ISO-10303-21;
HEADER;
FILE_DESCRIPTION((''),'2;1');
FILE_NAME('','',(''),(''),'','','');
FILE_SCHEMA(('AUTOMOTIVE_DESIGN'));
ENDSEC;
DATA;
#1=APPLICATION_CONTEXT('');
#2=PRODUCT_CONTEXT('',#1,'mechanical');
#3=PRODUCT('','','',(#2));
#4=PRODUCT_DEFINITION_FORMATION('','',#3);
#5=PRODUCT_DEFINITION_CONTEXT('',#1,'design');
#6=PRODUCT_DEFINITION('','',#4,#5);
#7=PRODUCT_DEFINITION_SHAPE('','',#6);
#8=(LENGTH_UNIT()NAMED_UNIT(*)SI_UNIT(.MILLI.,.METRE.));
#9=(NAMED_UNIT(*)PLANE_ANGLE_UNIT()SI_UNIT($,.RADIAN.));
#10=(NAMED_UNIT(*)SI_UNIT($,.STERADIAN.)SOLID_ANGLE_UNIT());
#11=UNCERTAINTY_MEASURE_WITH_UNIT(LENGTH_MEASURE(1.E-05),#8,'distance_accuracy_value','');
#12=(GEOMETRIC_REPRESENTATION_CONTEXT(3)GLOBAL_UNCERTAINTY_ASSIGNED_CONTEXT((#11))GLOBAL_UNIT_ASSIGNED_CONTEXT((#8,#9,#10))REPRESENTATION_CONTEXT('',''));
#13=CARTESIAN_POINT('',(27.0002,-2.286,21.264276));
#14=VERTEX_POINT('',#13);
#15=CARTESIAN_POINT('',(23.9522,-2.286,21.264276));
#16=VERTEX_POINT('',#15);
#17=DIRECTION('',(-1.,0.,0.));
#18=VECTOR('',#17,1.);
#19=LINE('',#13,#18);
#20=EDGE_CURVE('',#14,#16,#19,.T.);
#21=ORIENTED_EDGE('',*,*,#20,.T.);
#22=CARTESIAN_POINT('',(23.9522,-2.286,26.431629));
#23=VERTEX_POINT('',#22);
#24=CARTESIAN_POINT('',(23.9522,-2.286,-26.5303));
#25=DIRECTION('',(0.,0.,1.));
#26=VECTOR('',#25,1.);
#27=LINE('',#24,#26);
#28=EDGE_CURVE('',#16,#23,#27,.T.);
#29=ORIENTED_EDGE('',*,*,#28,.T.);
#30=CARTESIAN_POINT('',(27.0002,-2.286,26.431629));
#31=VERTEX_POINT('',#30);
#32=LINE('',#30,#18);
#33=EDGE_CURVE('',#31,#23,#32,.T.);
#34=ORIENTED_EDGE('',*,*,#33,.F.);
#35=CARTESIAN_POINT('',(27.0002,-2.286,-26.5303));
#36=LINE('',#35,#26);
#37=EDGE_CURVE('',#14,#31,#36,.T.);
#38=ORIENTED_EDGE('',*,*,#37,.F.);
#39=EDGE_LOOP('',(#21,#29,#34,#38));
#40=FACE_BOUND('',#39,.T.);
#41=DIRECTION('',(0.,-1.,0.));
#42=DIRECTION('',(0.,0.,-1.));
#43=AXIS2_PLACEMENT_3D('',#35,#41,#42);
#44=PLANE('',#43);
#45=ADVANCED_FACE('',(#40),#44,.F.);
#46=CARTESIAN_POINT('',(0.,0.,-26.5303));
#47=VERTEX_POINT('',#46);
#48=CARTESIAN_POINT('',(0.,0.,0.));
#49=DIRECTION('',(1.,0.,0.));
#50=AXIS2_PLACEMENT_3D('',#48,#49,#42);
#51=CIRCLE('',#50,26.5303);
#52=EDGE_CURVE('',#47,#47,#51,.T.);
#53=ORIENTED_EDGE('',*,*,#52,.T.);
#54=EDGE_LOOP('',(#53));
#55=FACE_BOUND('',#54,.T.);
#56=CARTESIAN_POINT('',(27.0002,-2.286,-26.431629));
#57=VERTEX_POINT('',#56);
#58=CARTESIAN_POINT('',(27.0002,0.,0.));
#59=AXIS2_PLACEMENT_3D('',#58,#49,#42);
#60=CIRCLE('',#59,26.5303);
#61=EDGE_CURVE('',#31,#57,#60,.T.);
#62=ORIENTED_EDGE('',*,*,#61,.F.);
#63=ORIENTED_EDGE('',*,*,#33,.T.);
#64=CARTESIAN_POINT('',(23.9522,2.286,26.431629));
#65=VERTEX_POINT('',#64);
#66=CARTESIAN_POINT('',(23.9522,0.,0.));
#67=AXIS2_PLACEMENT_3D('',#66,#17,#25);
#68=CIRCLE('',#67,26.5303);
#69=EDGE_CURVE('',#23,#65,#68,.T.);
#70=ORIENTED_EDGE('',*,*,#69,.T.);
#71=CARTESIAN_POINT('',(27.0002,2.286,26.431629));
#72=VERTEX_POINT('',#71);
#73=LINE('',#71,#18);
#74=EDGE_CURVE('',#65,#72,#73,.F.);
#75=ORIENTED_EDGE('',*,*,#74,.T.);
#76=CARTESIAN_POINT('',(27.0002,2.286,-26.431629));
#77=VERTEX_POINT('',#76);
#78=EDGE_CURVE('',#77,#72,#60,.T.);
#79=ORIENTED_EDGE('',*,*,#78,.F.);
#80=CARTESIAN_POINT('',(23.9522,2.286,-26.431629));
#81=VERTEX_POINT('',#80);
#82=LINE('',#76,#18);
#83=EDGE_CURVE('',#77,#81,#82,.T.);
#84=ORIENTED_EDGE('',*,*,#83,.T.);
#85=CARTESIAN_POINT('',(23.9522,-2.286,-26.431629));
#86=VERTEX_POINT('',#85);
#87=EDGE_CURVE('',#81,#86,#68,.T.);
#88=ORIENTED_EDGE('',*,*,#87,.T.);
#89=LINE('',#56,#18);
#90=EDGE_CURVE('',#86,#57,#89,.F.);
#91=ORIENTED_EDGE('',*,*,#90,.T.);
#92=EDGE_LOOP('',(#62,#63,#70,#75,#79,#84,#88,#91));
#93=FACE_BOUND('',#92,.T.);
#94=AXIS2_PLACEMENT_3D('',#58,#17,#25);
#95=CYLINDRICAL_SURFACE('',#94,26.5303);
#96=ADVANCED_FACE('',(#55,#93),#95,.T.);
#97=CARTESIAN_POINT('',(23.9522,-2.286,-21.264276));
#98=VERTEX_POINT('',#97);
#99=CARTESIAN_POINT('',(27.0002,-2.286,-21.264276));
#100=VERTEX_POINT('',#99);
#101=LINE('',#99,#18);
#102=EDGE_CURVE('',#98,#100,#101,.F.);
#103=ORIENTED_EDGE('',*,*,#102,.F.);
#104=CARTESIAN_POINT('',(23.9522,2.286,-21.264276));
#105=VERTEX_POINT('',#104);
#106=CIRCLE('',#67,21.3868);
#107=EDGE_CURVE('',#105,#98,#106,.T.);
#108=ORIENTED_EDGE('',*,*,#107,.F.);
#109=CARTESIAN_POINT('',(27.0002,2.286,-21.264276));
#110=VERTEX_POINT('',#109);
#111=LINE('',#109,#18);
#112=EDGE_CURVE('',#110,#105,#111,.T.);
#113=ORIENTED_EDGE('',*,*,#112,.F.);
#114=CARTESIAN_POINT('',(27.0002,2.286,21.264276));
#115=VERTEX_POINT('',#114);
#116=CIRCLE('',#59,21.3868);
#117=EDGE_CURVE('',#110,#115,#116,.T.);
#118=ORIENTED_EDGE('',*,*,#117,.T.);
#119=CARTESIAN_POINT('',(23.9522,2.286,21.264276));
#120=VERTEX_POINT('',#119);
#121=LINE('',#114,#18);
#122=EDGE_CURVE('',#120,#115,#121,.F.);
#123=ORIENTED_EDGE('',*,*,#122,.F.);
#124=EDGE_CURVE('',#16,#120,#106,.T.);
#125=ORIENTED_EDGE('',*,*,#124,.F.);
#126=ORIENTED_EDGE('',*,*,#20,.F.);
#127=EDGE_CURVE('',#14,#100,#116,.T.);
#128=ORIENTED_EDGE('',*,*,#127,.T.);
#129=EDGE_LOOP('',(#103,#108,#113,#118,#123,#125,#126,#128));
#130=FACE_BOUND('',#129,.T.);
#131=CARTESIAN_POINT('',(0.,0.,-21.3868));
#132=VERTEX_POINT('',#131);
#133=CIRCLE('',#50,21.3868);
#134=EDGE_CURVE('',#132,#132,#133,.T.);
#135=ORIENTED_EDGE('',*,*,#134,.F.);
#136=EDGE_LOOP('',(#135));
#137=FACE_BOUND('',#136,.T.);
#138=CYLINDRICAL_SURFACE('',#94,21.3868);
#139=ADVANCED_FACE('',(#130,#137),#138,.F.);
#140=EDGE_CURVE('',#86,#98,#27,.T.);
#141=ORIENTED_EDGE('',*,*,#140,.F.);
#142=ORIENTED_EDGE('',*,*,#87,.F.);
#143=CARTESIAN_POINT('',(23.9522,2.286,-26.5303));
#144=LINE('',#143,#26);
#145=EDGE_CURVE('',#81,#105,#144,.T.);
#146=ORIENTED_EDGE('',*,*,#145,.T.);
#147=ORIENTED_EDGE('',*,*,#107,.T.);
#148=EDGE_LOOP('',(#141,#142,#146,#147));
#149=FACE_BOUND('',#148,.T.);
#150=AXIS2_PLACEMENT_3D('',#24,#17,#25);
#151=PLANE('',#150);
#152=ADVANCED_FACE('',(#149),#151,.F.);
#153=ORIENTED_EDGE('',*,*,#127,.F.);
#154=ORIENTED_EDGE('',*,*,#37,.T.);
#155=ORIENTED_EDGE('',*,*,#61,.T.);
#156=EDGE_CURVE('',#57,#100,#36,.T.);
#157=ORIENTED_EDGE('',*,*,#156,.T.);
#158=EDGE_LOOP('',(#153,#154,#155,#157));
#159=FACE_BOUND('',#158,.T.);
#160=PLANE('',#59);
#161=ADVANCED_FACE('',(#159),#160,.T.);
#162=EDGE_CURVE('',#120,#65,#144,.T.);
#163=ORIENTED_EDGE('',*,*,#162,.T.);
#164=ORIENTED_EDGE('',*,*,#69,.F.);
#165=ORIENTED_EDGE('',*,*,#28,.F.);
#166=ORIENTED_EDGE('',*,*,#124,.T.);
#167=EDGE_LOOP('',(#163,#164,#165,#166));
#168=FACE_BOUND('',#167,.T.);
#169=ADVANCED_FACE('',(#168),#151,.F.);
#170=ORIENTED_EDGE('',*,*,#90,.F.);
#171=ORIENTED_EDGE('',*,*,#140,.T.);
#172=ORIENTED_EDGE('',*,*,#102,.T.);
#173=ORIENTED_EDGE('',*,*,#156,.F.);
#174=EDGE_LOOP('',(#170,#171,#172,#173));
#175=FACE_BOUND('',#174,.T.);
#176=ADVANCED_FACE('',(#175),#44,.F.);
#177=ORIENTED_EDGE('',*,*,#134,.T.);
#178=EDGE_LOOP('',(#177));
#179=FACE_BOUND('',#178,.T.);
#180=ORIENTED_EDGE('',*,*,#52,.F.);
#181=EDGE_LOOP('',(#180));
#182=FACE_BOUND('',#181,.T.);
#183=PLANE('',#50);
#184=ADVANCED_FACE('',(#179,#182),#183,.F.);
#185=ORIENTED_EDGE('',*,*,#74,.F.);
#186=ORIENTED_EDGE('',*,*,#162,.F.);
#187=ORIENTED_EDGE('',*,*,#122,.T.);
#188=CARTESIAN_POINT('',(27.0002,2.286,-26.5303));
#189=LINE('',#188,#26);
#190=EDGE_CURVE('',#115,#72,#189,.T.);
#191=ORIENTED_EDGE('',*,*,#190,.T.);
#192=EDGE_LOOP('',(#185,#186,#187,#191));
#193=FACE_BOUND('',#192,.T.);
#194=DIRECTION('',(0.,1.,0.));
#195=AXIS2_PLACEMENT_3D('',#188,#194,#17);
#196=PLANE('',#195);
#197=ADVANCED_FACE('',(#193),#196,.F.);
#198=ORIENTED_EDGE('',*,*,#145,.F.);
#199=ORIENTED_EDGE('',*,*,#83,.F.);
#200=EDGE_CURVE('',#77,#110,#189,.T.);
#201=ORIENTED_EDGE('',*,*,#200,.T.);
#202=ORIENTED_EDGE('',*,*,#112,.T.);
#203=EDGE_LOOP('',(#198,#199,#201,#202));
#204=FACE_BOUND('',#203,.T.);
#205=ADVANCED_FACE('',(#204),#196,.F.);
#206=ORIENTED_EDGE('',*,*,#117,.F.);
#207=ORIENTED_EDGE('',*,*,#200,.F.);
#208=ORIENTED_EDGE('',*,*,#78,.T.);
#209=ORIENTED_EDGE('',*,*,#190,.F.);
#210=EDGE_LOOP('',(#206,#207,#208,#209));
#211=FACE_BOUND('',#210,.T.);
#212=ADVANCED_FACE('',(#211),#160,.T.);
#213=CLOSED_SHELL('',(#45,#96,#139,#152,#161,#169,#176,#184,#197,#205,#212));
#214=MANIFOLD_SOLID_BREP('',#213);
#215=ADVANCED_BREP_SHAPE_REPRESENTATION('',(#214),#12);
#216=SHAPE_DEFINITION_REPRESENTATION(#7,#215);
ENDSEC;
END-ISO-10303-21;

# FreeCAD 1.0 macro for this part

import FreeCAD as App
import Part
import Sketcher

V = App.Vector
Q = App.Units.Quantity

doc = App.newDocument("Part")
body = doc.addObject("PartDesign::Body", "Body")

sketch1 = body.newObject("Sketcher::SketchObject", "Sketch")
sketch1.AttachmentSupport = (doc.getObject("YZ_Plane"), [""])
sketch1.MapMode = "FlatFace"
sketch1.addGeometry(Part.Circle(V(0, 0, 0), V(0, 0, 1), 27), False)
sketch1.addGeometry(Part.Circle(V(0, 0, 0), V(0, 0, 1), 21), False)
sketch1.addConstraint(Sketcher.Constraint("Coincident", 0, 3, -1, 1))
sketch1.addConstraint(Sketcher.Constraint("Coincident", 1, 3, -1, 1))
sketch1.addConstraint(Sketcher.Constraint("Diameter", 0, Q("2.089 in")))
sketch1.addConstraint(Sketcher.Constraint("Diameter", 1, Q("1.684 in")))
pad1 = body.newObject("PartDesign::Pad", "Pad")
pad1.Profile = sketch1
pad1.Length = Q("1.063 in")

sketch2 = body.newObject("Sketcher::SketchObject", "Sketch001")
sketch2.AttachmentSupport = (doc.getObject("XY_Plane"), [""])
sketch2.MapMode = "FlatFace"
sketch2.addGeometry(Part.LineSegment(V(24, 2.3, 0), V(24, -2.3, 0)), False)
sketch2.addGeometry(Part.LineSegment(V(24, -2.3, 0), V(27, -2.3, 0)), False)
sketch2.addGeometry(Part.LineSegment(V(27, -2.3, 0), V(27, 2.3, 0)), False)
sketch2.addGeometry(Part.LineSegment(V(27, 2.3, 0), V(24, 2.3, 0)), False)
sketch2.addConstraint(Sketcher.Constraint("Coincident", 0, 2, 1, 1))
sketch2.addConstraint(Sketcher.Constraint("Coincident", 1, 2, 2, 1))
sketch2.addConstraint(Sketcher.Constraint("Coincident", 2, 2, 3, 1))
sketch2.addConstraint(Sketcher.Constraint("Coincident", 3, 2, 0, 1))
sketch2.addConstraint(Sketcher.Constraint("Vertical", 0))
sketch2.addConstraint(Sketcher.Constraint("Horizontal", 1))
sketch2.addConstraint(Sketcher.Constraint("Vertical", 2))
sketch2.addConstraint(Sketcher.Constraint("Horizontal", 3))
sketch2.addConstraint(Sketcher.Constraint("DistanceX", 1, 1, 1, 2, Q("0.12 in")))
sketch2.addConstraint(Sketcher.Constraint("DistanceY", 0, 2, 0, 1, Q("0.18 in")))
sketch2.addConstraint(Sketcher.Constraint("DistanceY", 0, 2, -1, 1, Q("0.09 in")))
sketch2.addConstraint(Sketcher.Constraint("DistanceX", -1, 1, 0, 2, Q("0.943 in")))
pocket1 = body.newObject("PartDesign::Pocket", "Pocket")
pocket1.Profile = sketch2
pocket1.Type = "ThroughAll"
pocket1.Midplane = True

doc.recompute()
